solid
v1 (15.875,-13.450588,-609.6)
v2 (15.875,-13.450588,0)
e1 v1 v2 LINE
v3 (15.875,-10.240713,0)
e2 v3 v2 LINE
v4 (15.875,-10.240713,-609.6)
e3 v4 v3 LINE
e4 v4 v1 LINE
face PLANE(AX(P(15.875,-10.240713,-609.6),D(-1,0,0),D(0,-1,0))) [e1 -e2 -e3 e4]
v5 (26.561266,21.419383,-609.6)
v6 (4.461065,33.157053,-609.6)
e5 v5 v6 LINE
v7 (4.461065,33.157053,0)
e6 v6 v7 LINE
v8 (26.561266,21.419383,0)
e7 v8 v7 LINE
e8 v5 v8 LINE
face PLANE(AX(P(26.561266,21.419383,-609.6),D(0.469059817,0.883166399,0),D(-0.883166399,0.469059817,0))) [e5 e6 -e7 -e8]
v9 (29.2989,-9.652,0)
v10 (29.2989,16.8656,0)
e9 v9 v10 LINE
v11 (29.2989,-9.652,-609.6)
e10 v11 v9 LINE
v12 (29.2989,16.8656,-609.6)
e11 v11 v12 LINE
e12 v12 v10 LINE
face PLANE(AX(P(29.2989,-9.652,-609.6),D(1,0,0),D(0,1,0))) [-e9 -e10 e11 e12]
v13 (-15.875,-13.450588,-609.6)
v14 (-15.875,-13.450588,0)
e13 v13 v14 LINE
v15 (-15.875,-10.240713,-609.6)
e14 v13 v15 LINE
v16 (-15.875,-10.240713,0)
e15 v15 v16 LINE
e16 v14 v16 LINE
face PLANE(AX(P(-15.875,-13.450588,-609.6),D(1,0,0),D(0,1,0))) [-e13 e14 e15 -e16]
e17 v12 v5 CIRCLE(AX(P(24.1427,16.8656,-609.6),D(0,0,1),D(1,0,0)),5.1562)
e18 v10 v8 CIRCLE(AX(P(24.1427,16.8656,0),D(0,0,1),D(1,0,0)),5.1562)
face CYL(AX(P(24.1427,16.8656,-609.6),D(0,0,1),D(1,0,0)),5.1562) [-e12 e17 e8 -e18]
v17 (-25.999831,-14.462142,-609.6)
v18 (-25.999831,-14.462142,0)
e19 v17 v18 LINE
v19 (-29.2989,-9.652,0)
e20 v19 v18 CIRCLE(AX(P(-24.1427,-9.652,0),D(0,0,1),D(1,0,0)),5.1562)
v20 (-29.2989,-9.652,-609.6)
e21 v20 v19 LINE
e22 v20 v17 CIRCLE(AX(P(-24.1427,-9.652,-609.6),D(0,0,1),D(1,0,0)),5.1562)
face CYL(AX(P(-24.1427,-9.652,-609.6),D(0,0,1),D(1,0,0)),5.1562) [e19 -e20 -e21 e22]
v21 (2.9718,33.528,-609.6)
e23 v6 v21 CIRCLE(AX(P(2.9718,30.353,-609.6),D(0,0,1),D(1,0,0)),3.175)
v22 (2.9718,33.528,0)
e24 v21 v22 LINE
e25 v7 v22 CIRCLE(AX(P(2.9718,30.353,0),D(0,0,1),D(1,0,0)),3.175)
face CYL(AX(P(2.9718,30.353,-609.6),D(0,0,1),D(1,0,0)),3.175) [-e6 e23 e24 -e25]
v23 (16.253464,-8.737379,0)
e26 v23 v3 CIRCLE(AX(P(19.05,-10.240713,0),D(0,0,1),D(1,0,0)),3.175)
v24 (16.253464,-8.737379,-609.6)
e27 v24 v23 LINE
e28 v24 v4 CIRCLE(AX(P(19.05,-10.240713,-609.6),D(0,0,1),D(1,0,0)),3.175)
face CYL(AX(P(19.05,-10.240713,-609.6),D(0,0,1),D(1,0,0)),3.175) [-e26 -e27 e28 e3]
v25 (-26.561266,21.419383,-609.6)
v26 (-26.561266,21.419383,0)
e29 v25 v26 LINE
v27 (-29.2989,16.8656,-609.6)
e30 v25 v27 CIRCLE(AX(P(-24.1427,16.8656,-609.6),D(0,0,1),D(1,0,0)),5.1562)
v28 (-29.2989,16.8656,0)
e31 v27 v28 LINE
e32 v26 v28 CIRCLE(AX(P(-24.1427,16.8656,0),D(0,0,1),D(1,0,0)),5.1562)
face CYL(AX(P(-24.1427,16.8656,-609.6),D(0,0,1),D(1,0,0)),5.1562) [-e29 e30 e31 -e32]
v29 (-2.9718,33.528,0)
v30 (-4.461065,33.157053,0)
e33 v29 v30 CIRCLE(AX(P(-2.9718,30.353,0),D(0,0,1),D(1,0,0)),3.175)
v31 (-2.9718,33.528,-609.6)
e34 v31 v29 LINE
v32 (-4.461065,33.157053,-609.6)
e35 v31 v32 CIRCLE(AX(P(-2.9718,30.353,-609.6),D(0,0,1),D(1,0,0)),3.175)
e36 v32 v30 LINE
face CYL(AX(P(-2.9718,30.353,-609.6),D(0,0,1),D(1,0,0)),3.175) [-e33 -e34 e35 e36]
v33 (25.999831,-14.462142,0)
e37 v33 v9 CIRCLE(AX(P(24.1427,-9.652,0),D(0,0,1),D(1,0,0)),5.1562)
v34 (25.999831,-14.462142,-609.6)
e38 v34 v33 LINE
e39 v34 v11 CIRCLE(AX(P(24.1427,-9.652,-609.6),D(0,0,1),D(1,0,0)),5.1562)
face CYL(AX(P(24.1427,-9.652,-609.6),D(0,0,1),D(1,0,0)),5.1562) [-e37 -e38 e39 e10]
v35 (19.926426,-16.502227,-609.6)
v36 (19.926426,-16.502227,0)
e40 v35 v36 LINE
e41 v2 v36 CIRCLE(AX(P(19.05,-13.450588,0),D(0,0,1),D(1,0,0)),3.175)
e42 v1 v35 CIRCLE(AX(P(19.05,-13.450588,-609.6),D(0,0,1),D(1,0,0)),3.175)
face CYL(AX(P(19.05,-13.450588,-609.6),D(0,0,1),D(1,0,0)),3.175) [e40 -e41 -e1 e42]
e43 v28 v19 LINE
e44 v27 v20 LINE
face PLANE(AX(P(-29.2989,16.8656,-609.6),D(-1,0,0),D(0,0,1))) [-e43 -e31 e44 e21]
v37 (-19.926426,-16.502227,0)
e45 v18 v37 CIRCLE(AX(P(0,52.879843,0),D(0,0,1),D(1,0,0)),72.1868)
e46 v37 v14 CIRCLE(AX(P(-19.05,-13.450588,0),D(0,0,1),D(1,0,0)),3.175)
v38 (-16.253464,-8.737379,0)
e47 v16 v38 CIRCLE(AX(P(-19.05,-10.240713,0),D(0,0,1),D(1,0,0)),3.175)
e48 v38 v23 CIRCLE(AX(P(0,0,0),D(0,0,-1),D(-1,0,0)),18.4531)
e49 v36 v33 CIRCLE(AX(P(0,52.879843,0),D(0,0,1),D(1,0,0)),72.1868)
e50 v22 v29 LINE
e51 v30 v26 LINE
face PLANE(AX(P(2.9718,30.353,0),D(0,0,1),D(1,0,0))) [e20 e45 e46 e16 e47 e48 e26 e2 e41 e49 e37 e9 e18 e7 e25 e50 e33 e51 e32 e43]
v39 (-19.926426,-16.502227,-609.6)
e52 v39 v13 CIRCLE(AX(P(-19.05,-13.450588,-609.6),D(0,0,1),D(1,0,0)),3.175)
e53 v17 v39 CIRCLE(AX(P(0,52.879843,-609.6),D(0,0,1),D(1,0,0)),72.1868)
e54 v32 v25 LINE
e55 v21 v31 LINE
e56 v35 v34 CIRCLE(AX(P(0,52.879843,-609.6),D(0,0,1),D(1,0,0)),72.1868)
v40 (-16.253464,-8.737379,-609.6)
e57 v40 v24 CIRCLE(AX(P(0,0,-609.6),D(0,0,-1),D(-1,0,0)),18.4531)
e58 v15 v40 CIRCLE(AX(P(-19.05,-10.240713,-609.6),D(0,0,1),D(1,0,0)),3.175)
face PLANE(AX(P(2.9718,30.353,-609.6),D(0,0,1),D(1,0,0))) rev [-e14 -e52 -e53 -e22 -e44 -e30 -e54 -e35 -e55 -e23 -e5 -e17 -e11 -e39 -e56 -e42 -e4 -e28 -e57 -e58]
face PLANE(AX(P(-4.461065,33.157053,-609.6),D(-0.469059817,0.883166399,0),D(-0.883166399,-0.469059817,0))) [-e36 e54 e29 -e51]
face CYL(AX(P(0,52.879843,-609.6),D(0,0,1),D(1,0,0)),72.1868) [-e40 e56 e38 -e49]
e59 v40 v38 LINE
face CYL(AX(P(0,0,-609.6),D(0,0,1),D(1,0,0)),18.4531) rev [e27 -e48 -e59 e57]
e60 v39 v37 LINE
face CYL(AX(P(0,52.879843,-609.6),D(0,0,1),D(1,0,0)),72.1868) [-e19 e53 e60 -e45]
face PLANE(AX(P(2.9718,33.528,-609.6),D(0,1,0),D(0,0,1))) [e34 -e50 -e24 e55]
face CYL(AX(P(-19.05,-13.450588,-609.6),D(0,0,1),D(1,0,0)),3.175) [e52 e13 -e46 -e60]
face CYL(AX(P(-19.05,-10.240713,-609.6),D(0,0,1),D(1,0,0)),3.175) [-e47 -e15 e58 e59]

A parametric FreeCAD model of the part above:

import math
import FreeCAD as App
import Part
import Sketcher
from FreeCAD import Vector
Q = App.Units.Quantity

doc = App.newDocument("Part")
body = doc.addObject("PartDesign::Body", "Body")

# Sketch on XY plane
sketch1 = body.newObject("Sketcher::SketchObject", "Sketch")
sketch1.AttachmentSupport = (doc.getObject("XY_Plane"), [""])
sketch1.MapMode = "FlatFace"
sketch1.addGeometry([
    Part.LineSegment(Vector(2.9718, 33.528, 0), Vector(-2.9718, 33.528, 0)),  # 0
    Part.ArcOfCircle(Part.Circle(Vector(-2.9718, 30.353, 0), Vector(0, 0, 1), 3.175), math.radians(90), math.radians(117.973285)),  # 1
    Part.LineSegment(Vector(-4.461065, 33.157053, 0), Vector(-26.561266, 21.419383, 0)),  # 2
    Part.ArcOfCircle(Part.Circle(Vector(-24.1427, 16.8656, 0), Vector(0, 0, 1), 5.1562), math.radians(117.973285), math.radians(180)),  # 3
    Part.LineSegment(Vector(-29.2989, 16.8656, 0), Vector(-29.2989, -9.652, 0)),  # 4
    Part.ArcOfCircle(Part.Circle(Vector(-24.1427, -9.652, 0), Vector(0, 0, 1), 5.1562), math.radians(-180), math.radians(-111.110901)),  # 5
    Part.ArcOfCircle(Part.Circle(Vector(0, 52.879843, 0), Vector(0, 0, 1), 72.1868), math.radians(-111.110901), math.radians(-106.023986)),  # 6
    Part.ArcOfCircle(Part.Circle(Vector(-19.05, -13.450588, 0), Vector(0, 0, 1), 3.175), math.radians(-106.023986), math.radians(0)),  # 7
    Part.LineSegment(Vector(-15.875, -13.450588, 0), Vector(-15.875, -10.240713, 0)),  # 8
    Part.ArcOfCircle(Part.Circle(Vector(-19.05, -10.240713, 0), Vector(0, 0, 1), 3.175), math.radians(0), math.radians(28.261153)),  # 9
    Part.ArcOfCircle(Part.Circle(Vector(0, 0, 0), Vector(0, 0, 1), 18.4531), math.radians(-28.261153), math.radians(208.261153)),  # 10
    Part.ArcOfCircle(Part.Circle(Vector(19.05, -10.240713, 0), Vector(0, 0, 1), 3.175), math.radians(151.738847), math.radians(180)),  # 11
    Part.LineSegment(Vector(15.875, -10.240713, 0), Vector(15.875, -13.450588, 0)),  # 12
    Part.ArcOfCircle(Part.Circle(Vector(19.05, -13.450588, 0), Vector(0, 0, 1), 3.175), math.radians(180), math.radians(286.023986)),  # 13
    Part.ArcOfCircle(Part.Circle(Vector(0, 52.879843, 0), Vector(0, 0, 1), 72.1868), math.radians(-73.976014), math.radians(-68.889099)),  # 14
    Part.ArcOfCircle(Part.Circle(Vector(24.1427, -9.652, 0), Vector(0, 0, 1), 5.1562), math.radians(-68.889099), math.radians(0)),  # 15
    Part.LineSegment(Vector(29.2989, -9.652, 0), Vector(29.2989, 16.8656, 0)),  # 16
    Part.ArcOfCircle(Part.Circle(Vector(24.1427, 16.8656, 0), Vector(0, 0, 1), 5.1562), math.radians(0), math.radians(62.026715)),  # 17
    Part.LineSegment(Vector(26.561266, 21.419383, 0), Vector(4.461065, 33.157053, 0)),  # 18
    Part.ArcOfCircle(Part.Circle(Vector(2.9718, 30.353, 0), Vector(0, 0, 1), 3.175), math.radians(62.026715), math.radians(90)),  # 19
], False)
sketch1.addConstraint([
    Sketcher.Constraint("Tangent", 0, 2, 1, 1),
    Sketcher.Constraint("Tangent", 1, 2, 2, 1),
    Sketcher.Constraint("Tangent", 2, 2, 3, 1),
    Sketcher.Constraint("Tangent", 3, 2, 4, 1),
    Sketcher.Constraint("Tangent", 4, 2, 5, 1),
    Sketcher.Constraint("Tangent", 5, 2, 6, 1),
    Sketcher.Constraint("Tangent", 6, 2, 7, 1),
    Sketcher.Constraint("Tangent", 7, 2, 8, 1),
    Sketcher.Constraint("Tangent", 8, 2, 9, 1),
    Sketcher.Constraint("Tangent", 9, 2, 10, 2),
    Sketcher.Constraint("Tangent", 10, 1, 11, 1),
    Sketcher.Constraint("Tangent", 11, 2, 12, 1),
    Sketcher.Constraint("Tangent", 12, 2, 13, 1),
    Sketcher.Constraint("Tangent", 13, 2, 14, 1),
    Sketcher.Constraint("Tangent", 14, 2, 15, 1),
    Sketcher.Constraint("Tangent", 15, 2, 16, 1),
    Sketcher.Constraint("Tangent", 16, 2, 17, 1),
    Sketcher.Constraint("Tangent", 17, 2, 18, 1),
    Sketcher.Constraint("Tangent", 18, 2, 19, 1),
    Sketcher.Constraint("Tangent", 19, 2, 0, 1),
    Sketcher.Constraint("Horizontal", 0),
    Sketcher.Constraint("Vertical", 4),
    Sketcher.Constraint("Vertical", 8),
    Sketcher.Constraint("Vertical", 12),
    Sketcher.Constraint("Vertical", 16),
    Sketcher.Constraint("Coincident", 10, 3, -1, 1),
    Sketcher.Constraint("Coincident", 14, 3, 6, 3),
    Sketcher.Constraint("Equal", 3, 5),
    Sketcher.Constraint("Equal", 1, 7),
    Sketcher.Constraint("Equal", 7, 9),
    Sketcher.Constraint("Equal", 9, 11),
    Sketcher.Constraint("Equal", 11, 13),
    Sketcher.Constraint("Equal", 6, 14),
    Sketcher.Constraint("Equal", 5, 15),
    Sketcher.Constraint("Equal", 15, 17),
    Sketcher.Constraint("Equal", 13, 19),
    Sketcher.Constraint("Symmetric", 7, 3, 13, 3, -2),
    Sketcher.Constraint("Symmetric", 3, 3, 17, 3, -2),
    Sketcher.Constraint("Horizontal", 2, 2, 17, 2),
    Sketcher.Constraint("Radius", 1, Q("0.125 in")),
    Sketcher.Constraint("Radius", 3, Q("0.203 in")),
    Sketcher.Constraint("Radius", 6, Q("2.842 in")),
    Sketcher.Constraint("Radius", 10, Q("0.7265 in")),
    Sketcher.Constraint("DistanceX", 9, 3, 11, 3, Q("1.5 in")),
    Sketcher.Constraint("DistanceX", 0, 2, 0, 1, Q("0.234 in")),
    Sketcher.Constraint("DistanceY", 4, 2, 4, 1, Q("1.044 in")),
    Sketcher.Constraint("DistanceY", 5, 3, -1, 1, Q("0.38 in")),
    Sketcher.Constraint("DistanceY", -1, 1, 0, 2, Q("1.32 in")),
    Sketcher.Constraint("DistanceX", 3, 3, -1, 1, Q("0.9505 in")),
])
pad1 = body.newObject("PartDesign::Pad", "Pad")
pad1.Profile = sketch1
pad1.Length = Q("24 in")
pad1.Reversed = True

doc.recompute()
